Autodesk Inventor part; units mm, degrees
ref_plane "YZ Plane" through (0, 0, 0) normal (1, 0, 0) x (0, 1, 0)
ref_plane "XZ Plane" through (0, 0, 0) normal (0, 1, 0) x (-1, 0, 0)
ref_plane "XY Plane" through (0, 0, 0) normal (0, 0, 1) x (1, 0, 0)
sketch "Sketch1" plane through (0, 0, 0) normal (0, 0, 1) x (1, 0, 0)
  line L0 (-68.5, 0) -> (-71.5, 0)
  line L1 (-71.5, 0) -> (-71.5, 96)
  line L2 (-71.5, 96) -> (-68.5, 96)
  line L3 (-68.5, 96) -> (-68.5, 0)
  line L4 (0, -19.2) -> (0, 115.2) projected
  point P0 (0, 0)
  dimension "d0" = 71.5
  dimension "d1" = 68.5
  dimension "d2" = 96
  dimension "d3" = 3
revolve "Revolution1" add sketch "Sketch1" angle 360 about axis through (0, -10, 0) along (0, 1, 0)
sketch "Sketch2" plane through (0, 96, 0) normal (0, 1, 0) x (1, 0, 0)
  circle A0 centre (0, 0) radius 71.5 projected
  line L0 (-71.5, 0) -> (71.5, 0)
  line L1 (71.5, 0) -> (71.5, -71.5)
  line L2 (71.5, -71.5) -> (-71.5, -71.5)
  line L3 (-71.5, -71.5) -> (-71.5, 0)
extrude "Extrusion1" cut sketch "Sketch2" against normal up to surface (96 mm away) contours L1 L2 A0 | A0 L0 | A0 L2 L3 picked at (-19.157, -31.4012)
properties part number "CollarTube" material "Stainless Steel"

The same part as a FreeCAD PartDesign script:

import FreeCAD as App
import Part
import Sketcher
from FreeCAD import Vector
Q = App.Units.Quantity

doc = App.newDocument("Part")
body = doc.addObject("PartDesign::Body", "Body")

# Sketch on XY plane
sketch1 = body.newObject("Sketcher::SketchObject", "Sketch")
sketch1.AttachmentSupport = (doc.getObject("XY_Plane"), [""])
sketch1.MapMode = "FlatFace"
sketch1.addGeometry(Part.LineSegment(Vector(-71.5, 0, 0), Vector(-68.5, 0, 0)), False)
sketch1.addGeometry(Part.LineSegment(Vector(-68.5, 0, 0), Vector(-68.5, 96, 0)), False)
sketch1.addGeometry(Part.LineSegment(Vector(-68.5, 96, 0), Vector(-71.5, 96, 0)), False)
sketch1.addGeometry(Part.LineSegment(Vector(-71.5, 96, 0), Vector(-71.5, 0, 0)), False)
sketch1.addConstraint(Sketcher.Constraint("Coincident", 0, 2, 1, 1))
sketch1.addConstraint(Sketcher.Constraint("Coincident", 1, 2, 2, 1))
sketch1.addConstraint(Sketcher.Constraint("Coincident", 2, 2, 3, 1))
sketch1.addConstraint(Sketcher.Constraint("Coincident", 3, 2, 0, 1))
sketch1.addConstraint(Sketcher.Constraint("Horizontal", 0))
sketch1.addConstraint(Sketcher.Constraint("Vertical", 1))
sketch1.addConstraint(Sketcher.Constraint("Horizontal", 2))
sketch1.addConstraint(Sketcher.Constraint("Vertical", 3))
sketch1.addConstraint(Sketcher.Constraint("PointOnObject", 0, 2, -1))
sketch1.addConstraint(Sketcher.Constraint("DistanceX", 0, 1, 0, 2, Q("3 mm")))
sketch1.addConstraint(Sketcher.Constraint("DistanceY", 1, 1, 1, 2, Q("96 mm")))
sketch1.addConstraint(Sketcher.Constraint("DistanceX", 0, 2, -1, 1, Q("68.5 mm")))
revolution = body.newObject("PartDesign::Revolution", "Revolution")
revolution.Profile = sketch1
revolution.ReferenceAxis = (sketch1, ["V_Axis"])
revolution.Angle = 360

# Sketch on XZ plane
sketch2 = body.newObject("Sketcher::SketchObject", "Sketch001")
sketch2.AttachmentSupport = (doc.getObject("XZ_Plane"), [""])
sketch2.MapMode = "FlatFace"
sketch2.AttachmentOffset = App.Placement(Vector(0, 0, -96), App.Rotation())
sketch2.addGeometry(Part.LineSegment(Vector(72, 72, 0), Vector(72, 0, 0)), False)
sketch2.addGeometry(Part.LineSegment(Vector(72, 0, 0), Vector(-72, 0, 0)), False)
sketch2.addGeometry(Part.LineSegment(Vector(-72, 0, 0), Vector(-72, 72, 0)), False)
sketch2.addGeometry(Part.LineSegment(Vector(-72, 72, 0), Vector(72, 72, 0)), False)
sketch2.addConstraint(Sketcher.Constraint("Coincident", 0, 2, 1, 1))
sketch2.addConstraint(Sketcher.Constraint("Coincident", 1, 2, 2, 1))
sketch2.addConstraint(Sketcher.Constraint("Coincident", 2, 2, 3, 1))
sketch2.addConstraint(Sketcher.Constraint("Coincident", 3, 2, 0, 1))
sketch2.addConstraint(Sketcher.Constraint("Vertical", 0))
sketch2.addConstraint(Sketcher.Constraint("Horizontal", 1))
sketch2.addConstraint(Sketcher.Constraint("Vertical", 2))
sketch2.addConstraint(Sketcher.Constraint("Horizontal", 3))
sketch2.addConstraint(Sketcher.Constraint("Symmetric", 0, 2, 1, 2, -1, 1))
sketch2.addConstraint(Sketcher.Constraint("DistanceX", 1, 2, 1, 1, Q("143 mm")))
sketch2.addConstraint(Sketcher.Constraint("DistanceY", 0, 2, 0, 1, Q("71.5 mm")))
pocket1 = body.newObject("PartDesign::Pocket", "Pocket")
pocket1.Profile = sketch2
pocket1.Length = 96
pocket1.Reversed = True

doc.recompute()
